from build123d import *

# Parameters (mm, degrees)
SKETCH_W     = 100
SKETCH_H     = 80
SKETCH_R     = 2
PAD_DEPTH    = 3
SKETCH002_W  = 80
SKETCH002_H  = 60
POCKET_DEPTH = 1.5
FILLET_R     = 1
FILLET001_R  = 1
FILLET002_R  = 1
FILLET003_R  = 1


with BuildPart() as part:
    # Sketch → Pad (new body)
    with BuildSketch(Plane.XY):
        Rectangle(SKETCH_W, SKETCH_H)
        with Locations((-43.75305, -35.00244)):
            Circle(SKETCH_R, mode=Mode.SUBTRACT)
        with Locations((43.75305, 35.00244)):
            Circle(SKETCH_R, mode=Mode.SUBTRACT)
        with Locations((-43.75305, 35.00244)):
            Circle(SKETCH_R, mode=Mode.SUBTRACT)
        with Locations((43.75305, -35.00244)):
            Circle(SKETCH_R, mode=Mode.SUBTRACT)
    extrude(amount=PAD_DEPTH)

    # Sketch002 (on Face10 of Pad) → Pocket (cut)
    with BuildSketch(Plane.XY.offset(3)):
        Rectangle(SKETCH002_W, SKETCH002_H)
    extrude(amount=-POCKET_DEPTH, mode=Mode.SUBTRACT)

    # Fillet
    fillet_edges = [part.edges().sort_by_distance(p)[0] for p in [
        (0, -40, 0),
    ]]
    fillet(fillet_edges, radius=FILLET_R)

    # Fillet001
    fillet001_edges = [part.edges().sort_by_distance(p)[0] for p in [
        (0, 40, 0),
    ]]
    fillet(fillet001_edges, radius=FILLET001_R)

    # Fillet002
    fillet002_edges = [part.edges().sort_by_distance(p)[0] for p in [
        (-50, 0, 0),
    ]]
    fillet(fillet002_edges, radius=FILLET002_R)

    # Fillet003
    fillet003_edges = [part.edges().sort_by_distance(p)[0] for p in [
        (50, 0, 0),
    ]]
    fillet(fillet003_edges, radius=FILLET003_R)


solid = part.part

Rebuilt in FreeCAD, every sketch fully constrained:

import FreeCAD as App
import Part
import Sketcher
from FreeCAD import Vector
Q = App.Units.Quantity


def edges_at(feature, points):
    """Names of the edges that pass closest to the given points."""
    edges = feature.Shape.Edges
    near = lambda p: min(range(len(edges)), key=lambda i: edges[i].distToShape(Part.Vertex(*p))[0])
    return sorted({f"Edge{near(p) + 1}" for p in points})

doc = App.newDocument("Part")
body = doc.addObject("PartDesign::Body", "Body")

# Sketch on XY plane
sketch1 = doc.addObject("Sketcher::SketchObject", "Sketch")
body.addObject(sketch1)
sketch1.AttachmentSupport = (doc.XY_Plane, [""])
sketch1.MapMode = "FlatFace"
sketch1.addGeometry([
    Part.LineSegment(Vector(-50, 40, 0), Vector(-50, -40, 0)),  # 0
    Part.LineSegment(Vector(-50, -40, 0), Vector(50, -40, 0)),  # 1
    Part.LineSegment(Vector(50, -40, 0), Vector(50, 40, 0)),  # 2
    Part.LineSegment(Vector(50, 40, 0), Vector(-50, 40, 0)),  # 3
    Part.Circle(Vector(-43.75305, -35.00244, 0), Vector(0, 0, 1), 2),  # 4
    Part.Circle(Vector(43.75305, -35.00244, 0), Vector(0, 0, 1), 2),  # 5
    Part.Circle(Vector(-43.75305, 35.00244, 0), Vector(0, 0, 1), 2),  # 6
    Part.Circle(Vector(43.75305, 35.00244, 0), Vector(0, 0, 1), 2),  # 7
], False)
sketch1.addConstraint([
    Sketcher.Constraint("Coincident", 0, 2, 1, 1),
    Sketcher.Constraint("Coincident", 1, 2, 2, 1),
    Sketcher.Constraint("Coincident", 2, 2, 3, 1),
    Sketcher.Constraint("Coincident", 3, 2, 0, 1),
    Sketcher.Constraint("Vertical", 0),
    Sketcher.Constraint("Horizontal", 1),
    Sketcher.Constraint("Vertical", 2),
    Sketcher.Constraint("Horizontal", 3),
    Sketcher.Constraint("Equal", 4, 5),
    Sketcher.Constraint("Equal", 5, 6),
    Sketcher.Constraint("Equal", 6, 7),
    Sketcher.Constraint("Symmetric", 5, 3, 6, 3, -1, 1),
    Sketcher.Constraint("Symmetric", 4, 3, 7, 3, -1, 1),
    Sketcher.Constraint("Symmetric", 0, 2, 2, 2, -1, 1),
    Sketcher.Constraint("Symmetric", 4, 3, 5, 3, -2),
    Sketcher.Constraint("Diameter", 4, Q("4 mm")),
    Sketcher.Constraint("DistanceX", 1, 1, 1, 2, Q("100 mm")),
    Sketcher.Constraint("DistanceY", 0, 2, 0, 1, Q("80 mm")),
    Sketcher.Constraint("DistanceX", 4, 3, 5, 3, Q("87.5061 mm")),
    Sketcher.Constraint("DistanceY", 4, 3, -1, 1, Q("35.00244 mm")),
])
pad1 = doc.addObject("PartDesign::Pad", "Pad")
body.addObject(pad1)
pad1.Profile = sketch1
pad1.Length = 3

# Sketch on XY plane
sketch2 = doc.addObject("Sketcher::SketchObject", "Sketch001")
body.addObject(sketch2)
sketch2.AttachmentSupport = (doc.XY_Plane, [""])
sketch2.MapMode = "FlatFace"
sketch2.AttachmentOffset = App.Placement(Vector(0, 0, 3), App.Rotation())
sketch2.addGeometry([
    Part.LineSegment(Vector(-40, 30, 0), Vector(-40, -30, 0)),
    Part.LineSegment(Vector(-40, -30, 0), Vector(40, -30, 0)),
    Part.LineSegment(Vector(40, -30, 0), Vector(40, 30, 0)),
    Part.LineSegment(Vector(40, 30, 0), Vector(-40, 30, 0)),
], False)
sketch2.addConstraint([
    Sketcher.Constraint("Coincident", 0, 2, 1, 1),
    Sketcher.Constraint("Coincident", 1, 2, 2, 1),
    Sketcher.Constraint("Coincident", 2, 2, 3, 1),
    Sketcher.Constraint("Coincident", 3, 2, 0, 1),
    Sketcher.Constraint("Vertical", 0),
    Sketcher.Constraint("Horizontal", 1),
    Sketcher.Constraint("Vertical", 2),
    Sketcher.Constraint("Horizontal", 3),
    Sketcher.Constraint("Symmetric", 0, 2, 2, 2, -1, 1),
    Sketcher.Constraint("DistanceX", 1, 1, 1, 2, Q("80 mm")),
    Sketcher.Constraint("DistanceY", 0, 2, 0, 1, Q("60 mm")),
])
pocket1 = doc.addObject("PartDesign::Pocket", "Pocket")
body.addObject(pocket1)
pocket1.Profile = sketch2
pocket1.Length = 1.5
doc.recompute()

fillet = doc.addObject("PartDesign::Fillet", "Fillet")
body.addObject(fillet)
fillet.Base = (pocket1, edges_at(pocket1, [(0, -40, 0)]))
fillet.Radius = 1
doc.recompute()

fillet2 = doc.addObject("PartDesign::Fillet", "Fillet001")
body.addObject(fillet2)
fillet2.Base = (fillet, edges_at(fillet, [(0, 40, 0)]))
fillet2.Radius = 1
doc.recompute()

fillet3 = doc.addObject("PartDesign::Fillet", "Fillet002")
body.addObject(fillet3)
fillet3.Base = (fillet2, edges_at(fillet2, [(-50, 0, 0)]))
fillet3.Radius = 1
doc.recompute()

fillet4 = doc.addObject("PartDesign::Fillet", "Fillet003")
body.addObject(fillet4)
fillet4.Base = (fillet3, edges_at(fillet3, [(50, 0, 0)]))
fillet4.Radius = 1

doc.recompute()
